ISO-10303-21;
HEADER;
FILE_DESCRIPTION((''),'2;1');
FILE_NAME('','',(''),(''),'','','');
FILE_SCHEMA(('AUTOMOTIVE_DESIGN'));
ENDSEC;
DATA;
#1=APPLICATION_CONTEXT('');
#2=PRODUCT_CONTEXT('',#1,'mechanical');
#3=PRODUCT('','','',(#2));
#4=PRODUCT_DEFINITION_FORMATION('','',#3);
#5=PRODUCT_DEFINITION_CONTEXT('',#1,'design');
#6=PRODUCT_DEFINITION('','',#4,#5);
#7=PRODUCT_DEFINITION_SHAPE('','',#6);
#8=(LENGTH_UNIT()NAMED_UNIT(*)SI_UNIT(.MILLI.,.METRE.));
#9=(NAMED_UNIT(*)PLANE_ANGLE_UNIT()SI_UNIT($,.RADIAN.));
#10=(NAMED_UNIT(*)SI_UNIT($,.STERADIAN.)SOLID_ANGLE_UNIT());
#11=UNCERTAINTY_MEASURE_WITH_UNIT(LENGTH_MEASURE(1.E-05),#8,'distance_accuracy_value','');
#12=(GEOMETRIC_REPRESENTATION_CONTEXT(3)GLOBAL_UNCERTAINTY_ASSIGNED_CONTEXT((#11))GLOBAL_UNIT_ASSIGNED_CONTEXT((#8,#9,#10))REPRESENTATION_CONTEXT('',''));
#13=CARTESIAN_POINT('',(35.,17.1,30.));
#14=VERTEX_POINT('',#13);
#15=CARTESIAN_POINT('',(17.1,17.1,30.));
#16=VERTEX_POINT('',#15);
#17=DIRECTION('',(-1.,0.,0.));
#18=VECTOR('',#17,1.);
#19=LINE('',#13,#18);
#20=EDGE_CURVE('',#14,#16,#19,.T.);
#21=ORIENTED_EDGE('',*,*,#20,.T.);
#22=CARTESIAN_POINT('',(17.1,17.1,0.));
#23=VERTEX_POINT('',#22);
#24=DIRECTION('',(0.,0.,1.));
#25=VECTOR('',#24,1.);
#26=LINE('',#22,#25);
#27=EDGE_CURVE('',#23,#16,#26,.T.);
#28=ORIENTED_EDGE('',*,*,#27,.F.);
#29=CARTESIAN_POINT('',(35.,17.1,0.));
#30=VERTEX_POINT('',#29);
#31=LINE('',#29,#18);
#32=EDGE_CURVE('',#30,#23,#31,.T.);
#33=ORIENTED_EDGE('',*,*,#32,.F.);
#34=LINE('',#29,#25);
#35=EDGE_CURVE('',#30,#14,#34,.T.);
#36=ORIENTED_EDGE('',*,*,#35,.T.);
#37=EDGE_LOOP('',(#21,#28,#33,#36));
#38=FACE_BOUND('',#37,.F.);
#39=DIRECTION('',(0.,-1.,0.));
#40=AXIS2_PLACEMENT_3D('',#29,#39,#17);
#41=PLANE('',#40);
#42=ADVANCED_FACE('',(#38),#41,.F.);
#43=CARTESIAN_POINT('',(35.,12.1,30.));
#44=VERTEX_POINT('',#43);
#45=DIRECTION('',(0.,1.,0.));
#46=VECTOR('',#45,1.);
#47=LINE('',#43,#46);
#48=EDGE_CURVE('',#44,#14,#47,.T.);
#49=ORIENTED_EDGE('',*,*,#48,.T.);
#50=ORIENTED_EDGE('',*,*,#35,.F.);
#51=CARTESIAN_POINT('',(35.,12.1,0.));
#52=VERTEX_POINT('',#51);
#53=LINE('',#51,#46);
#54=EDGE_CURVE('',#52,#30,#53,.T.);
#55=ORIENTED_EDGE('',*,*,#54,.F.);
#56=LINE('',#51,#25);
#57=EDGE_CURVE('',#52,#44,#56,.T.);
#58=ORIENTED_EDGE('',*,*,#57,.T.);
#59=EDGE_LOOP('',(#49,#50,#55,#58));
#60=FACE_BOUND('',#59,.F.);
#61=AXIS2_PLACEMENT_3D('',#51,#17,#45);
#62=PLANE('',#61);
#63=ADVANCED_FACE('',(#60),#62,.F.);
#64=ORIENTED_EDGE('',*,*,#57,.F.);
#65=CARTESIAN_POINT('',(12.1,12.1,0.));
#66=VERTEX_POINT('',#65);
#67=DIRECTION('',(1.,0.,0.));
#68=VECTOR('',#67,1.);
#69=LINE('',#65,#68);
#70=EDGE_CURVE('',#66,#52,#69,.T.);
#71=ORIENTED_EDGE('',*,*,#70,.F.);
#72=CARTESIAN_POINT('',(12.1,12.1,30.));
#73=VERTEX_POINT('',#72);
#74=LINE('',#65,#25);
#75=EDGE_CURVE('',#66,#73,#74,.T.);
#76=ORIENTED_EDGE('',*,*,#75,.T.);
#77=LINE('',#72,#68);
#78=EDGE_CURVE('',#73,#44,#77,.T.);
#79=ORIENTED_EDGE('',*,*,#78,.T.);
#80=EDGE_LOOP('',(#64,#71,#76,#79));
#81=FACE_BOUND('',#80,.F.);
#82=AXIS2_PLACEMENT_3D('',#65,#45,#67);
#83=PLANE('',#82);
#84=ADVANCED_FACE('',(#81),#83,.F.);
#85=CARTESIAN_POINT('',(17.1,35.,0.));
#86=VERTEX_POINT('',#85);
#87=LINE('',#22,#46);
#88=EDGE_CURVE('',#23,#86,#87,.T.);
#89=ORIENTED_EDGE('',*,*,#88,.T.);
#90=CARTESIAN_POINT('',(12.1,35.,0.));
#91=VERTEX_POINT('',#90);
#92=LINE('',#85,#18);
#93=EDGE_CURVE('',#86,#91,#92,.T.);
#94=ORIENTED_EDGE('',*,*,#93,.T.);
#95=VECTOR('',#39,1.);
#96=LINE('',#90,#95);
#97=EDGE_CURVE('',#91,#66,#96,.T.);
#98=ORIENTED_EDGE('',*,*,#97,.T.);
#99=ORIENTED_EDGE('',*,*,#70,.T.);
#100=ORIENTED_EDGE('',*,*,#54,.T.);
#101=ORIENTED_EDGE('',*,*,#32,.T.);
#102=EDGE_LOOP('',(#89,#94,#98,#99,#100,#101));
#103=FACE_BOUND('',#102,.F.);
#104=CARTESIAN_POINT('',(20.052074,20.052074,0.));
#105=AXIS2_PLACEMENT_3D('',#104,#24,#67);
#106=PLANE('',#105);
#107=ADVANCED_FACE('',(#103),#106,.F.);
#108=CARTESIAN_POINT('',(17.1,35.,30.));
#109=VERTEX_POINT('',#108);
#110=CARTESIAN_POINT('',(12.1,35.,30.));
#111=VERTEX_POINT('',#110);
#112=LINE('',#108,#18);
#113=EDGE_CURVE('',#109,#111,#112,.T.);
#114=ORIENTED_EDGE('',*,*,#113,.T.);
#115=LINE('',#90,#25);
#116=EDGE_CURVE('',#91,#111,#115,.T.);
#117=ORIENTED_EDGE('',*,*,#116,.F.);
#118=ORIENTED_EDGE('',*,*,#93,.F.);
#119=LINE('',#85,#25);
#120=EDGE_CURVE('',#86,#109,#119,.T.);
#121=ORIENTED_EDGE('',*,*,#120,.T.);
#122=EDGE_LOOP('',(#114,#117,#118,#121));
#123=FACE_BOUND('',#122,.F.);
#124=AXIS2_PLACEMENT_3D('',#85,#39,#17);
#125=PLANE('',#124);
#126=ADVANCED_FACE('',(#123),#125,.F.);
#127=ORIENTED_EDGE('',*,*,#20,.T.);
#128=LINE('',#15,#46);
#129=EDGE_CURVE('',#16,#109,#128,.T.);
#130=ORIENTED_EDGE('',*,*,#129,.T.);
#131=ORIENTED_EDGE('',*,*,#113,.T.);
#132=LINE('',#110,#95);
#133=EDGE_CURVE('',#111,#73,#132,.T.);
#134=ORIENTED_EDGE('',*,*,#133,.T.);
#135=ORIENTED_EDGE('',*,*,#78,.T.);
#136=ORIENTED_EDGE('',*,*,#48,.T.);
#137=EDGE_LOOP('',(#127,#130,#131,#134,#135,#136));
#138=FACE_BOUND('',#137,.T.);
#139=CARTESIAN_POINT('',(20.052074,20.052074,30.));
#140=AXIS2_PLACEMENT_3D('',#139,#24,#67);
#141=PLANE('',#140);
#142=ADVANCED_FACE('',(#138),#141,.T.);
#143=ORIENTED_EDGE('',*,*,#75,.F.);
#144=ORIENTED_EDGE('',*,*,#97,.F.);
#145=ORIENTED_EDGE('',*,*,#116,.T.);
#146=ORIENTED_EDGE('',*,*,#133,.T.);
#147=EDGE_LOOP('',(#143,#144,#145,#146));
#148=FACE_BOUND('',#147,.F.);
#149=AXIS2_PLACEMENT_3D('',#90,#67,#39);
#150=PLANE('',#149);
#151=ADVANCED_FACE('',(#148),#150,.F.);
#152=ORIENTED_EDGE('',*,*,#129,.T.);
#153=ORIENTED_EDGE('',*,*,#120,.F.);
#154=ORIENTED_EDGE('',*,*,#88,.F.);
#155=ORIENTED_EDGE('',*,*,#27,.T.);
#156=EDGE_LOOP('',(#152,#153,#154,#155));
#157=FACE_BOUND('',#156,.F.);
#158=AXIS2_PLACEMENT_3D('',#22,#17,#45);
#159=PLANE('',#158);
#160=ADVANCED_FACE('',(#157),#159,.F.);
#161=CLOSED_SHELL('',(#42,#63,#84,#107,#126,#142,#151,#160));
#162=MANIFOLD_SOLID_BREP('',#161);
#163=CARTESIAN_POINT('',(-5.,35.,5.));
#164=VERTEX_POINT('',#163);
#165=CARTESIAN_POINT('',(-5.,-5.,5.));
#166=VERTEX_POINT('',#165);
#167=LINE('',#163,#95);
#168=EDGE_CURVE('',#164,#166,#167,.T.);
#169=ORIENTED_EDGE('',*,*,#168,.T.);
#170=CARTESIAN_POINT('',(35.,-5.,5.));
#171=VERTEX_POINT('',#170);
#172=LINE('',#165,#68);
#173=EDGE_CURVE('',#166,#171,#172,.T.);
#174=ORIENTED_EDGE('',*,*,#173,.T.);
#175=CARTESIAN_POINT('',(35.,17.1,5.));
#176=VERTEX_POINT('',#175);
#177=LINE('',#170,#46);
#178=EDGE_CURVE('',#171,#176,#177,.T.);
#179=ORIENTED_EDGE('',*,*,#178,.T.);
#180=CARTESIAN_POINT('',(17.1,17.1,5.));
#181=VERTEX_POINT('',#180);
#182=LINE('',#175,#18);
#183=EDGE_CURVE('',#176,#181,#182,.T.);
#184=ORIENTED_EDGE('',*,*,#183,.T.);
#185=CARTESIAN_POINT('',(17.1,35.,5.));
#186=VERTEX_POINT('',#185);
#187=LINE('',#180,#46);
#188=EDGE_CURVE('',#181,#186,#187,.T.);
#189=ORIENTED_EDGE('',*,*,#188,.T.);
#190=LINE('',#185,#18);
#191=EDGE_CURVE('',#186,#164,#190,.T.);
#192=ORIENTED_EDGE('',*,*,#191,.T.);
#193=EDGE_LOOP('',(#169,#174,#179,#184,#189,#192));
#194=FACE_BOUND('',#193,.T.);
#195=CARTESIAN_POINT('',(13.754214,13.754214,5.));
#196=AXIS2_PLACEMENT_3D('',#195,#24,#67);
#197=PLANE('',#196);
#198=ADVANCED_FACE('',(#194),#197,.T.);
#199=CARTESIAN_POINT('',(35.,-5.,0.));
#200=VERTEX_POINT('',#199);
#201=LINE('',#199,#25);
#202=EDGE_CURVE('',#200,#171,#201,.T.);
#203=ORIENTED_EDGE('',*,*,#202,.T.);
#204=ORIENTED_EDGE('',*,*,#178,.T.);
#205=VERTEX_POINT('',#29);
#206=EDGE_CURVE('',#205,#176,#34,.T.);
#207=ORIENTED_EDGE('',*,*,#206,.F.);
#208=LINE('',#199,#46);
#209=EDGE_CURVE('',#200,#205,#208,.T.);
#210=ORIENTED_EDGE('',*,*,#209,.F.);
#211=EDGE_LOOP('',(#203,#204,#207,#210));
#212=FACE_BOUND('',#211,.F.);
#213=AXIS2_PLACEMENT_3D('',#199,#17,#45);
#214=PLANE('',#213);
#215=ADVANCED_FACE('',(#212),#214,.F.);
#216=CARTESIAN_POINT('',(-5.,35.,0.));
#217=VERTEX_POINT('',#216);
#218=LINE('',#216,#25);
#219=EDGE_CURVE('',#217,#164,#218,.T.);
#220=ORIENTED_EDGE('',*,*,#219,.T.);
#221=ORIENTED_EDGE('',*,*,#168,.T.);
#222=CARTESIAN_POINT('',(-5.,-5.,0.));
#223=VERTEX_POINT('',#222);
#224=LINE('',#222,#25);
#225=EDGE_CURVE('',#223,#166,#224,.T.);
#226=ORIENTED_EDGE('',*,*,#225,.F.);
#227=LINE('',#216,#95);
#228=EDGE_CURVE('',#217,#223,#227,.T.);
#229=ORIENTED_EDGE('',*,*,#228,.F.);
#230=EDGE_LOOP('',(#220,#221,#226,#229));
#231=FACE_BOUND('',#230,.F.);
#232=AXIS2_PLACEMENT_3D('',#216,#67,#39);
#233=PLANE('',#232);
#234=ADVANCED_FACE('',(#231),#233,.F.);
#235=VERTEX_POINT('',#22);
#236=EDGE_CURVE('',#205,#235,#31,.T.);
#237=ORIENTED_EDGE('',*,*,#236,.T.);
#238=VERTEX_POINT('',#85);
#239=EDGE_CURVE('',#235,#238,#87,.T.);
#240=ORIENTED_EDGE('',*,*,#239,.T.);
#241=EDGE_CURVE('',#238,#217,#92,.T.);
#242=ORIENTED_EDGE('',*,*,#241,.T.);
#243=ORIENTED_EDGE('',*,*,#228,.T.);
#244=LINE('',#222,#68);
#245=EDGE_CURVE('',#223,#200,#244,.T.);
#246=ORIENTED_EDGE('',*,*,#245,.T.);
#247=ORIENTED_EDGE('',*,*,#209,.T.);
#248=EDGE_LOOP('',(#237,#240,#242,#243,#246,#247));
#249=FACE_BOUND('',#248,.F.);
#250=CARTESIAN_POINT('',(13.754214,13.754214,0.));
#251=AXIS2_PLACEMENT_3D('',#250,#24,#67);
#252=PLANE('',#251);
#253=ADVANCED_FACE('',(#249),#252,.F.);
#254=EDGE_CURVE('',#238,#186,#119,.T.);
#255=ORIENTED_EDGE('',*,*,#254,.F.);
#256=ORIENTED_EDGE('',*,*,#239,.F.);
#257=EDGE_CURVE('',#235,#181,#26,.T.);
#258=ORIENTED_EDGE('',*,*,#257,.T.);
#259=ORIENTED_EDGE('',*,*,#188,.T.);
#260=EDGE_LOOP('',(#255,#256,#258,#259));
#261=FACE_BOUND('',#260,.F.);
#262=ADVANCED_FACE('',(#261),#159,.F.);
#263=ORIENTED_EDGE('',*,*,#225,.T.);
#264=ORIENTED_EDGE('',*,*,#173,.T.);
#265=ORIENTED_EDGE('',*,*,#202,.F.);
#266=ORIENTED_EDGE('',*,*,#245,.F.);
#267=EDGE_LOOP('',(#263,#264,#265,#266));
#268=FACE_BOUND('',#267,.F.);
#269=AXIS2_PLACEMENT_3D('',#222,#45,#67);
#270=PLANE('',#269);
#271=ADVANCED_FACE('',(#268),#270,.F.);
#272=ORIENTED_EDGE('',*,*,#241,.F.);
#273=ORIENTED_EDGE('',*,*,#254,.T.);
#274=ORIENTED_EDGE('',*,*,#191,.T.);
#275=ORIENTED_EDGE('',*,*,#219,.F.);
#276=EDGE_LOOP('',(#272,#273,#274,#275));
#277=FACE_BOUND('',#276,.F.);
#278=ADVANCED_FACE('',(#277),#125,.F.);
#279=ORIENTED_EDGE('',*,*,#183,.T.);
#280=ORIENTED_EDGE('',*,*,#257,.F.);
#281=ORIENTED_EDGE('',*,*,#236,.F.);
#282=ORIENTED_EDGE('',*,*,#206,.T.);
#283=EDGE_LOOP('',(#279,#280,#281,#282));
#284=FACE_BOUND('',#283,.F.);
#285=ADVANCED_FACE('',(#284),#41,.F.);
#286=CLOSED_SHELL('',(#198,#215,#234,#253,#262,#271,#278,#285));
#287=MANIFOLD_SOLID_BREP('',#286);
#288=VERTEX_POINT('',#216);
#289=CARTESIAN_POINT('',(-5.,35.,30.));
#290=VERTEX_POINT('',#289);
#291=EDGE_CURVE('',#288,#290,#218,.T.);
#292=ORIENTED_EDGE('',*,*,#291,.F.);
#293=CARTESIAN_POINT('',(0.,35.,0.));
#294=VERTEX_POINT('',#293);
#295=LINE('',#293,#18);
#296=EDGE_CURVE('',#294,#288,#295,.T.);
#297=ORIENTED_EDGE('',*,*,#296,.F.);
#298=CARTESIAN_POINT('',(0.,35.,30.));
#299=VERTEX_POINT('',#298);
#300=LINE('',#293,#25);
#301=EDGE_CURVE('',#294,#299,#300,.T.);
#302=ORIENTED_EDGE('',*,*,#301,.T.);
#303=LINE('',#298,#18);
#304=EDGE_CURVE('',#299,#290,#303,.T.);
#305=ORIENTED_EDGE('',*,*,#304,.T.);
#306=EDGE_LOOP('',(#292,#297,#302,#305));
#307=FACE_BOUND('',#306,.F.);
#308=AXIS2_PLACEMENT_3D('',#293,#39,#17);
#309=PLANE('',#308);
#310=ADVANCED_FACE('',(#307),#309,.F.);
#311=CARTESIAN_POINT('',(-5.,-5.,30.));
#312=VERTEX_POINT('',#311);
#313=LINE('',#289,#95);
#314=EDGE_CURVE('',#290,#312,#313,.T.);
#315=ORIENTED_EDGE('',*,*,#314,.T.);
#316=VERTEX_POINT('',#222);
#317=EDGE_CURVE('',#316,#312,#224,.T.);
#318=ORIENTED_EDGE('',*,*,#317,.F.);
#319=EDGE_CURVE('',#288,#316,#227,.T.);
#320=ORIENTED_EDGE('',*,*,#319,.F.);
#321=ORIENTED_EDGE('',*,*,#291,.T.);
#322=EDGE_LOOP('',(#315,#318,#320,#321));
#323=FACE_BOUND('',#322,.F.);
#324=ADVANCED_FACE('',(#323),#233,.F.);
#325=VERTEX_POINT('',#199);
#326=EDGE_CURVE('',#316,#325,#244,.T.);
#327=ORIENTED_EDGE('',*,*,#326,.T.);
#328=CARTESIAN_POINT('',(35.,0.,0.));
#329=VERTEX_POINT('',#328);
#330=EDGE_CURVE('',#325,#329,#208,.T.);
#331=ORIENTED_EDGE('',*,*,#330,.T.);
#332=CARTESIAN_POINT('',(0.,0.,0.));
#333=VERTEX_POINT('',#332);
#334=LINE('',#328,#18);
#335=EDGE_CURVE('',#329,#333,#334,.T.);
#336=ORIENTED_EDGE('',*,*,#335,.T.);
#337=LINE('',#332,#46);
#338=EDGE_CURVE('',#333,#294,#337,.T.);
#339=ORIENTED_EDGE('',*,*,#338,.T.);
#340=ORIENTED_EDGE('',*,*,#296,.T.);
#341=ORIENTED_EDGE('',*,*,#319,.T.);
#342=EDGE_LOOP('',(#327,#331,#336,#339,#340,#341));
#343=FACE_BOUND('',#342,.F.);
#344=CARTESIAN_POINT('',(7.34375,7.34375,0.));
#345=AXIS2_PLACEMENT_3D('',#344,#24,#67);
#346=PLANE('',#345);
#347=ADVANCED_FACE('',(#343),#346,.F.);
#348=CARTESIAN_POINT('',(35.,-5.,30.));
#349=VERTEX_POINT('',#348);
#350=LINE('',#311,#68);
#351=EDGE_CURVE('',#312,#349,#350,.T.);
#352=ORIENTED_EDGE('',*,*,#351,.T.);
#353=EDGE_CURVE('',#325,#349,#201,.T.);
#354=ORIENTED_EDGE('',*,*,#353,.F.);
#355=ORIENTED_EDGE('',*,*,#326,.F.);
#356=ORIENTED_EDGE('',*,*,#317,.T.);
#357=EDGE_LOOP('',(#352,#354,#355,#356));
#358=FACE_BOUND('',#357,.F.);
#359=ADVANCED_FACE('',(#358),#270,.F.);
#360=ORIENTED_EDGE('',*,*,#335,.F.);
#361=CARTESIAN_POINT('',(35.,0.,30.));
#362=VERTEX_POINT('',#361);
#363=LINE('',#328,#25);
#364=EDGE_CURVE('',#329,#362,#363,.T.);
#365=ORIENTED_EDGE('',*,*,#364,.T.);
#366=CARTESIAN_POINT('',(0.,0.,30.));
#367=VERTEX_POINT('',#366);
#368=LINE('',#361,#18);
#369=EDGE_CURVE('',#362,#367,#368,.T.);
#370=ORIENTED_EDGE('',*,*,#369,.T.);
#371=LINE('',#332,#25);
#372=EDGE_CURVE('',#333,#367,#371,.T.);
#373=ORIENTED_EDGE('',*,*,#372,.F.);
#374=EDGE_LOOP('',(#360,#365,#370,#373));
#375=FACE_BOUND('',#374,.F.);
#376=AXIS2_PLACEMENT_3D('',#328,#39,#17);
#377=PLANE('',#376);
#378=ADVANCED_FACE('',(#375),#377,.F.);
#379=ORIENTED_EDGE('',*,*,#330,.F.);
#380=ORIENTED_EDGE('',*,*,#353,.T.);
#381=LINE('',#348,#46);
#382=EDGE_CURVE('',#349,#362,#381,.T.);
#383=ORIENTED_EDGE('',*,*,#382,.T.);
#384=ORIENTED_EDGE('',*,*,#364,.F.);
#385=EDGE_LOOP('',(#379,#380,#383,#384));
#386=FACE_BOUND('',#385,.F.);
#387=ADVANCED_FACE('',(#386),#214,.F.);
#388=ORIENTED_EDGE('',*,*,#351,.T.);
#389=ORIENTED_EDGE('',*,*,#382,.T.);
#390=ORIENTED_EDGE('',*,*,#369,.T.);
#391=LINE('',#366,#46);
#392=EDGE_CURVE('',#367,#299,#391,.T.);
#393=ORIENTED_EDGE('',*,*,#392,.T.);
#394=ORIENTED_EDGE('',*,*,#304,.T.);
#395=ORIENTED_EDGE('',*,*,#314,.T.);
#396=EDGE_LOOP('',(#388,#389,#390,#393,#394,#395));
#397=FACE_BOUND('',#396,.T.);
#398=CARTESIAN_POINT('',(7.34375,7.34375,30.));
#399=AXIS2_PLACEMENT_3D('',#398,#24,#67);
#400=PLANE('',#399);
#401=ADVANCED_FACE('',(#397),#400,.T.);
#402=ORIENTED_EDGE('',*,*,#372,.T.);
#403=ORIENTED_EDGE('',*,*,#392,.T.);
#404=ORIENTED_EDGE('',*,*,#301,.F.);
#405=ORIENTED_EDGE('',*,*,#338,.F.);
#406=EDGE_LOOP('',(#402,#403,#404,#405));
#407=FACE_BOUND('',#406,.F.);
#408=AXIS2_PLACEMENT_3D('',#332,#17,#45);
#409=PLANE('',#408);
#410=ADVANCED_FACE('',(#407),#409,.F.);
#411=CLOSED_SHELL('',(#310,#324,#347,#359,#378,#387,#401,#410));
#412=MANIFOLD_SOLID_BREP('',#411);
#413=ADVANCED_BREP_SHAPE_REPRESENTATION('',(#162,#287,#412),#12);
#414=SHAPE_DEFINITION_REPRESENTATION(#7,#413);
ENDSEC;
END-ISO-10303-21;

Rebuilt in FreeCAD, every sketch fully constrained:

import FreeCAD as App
import Part
import Sketcher
Q = App.Units.Quantity

doc = App.newDocument("Part")
body = doc.addObject("PartDesign::Body", "Body")
body.AllowCompound = True

# Sketch on XY plane
sketch1 = body.newObject("Sketcher::SketchObject", "Sketch")
sketch1.AttachmentSupport = (doc.getObject("XY_Plane"), [""])
sketch1.MapMode = "FlatFace"
sketch1.addGeometry([
    Part.LineSegment(App.Vector(35, 0, 0), App.Vector(0, 0, 0)),  # 0
    Part.LineSegment(App.Vector(0, 0, 0), App.Vector(0, 35, 0)),  # 1
    Part.LineSegment(App.Vector(0, 35, 0), App.Vector(-5, 35, 0)),  # 2
    Part.LineSegment(App.Vector(-5, 35, 0), App.Vector(-5, -5, 0)),  # 3
    Part.LineSegment(App.Vector(-5, -5, 0), App.Vector(35, -5, 0)),  # 4
    Part.LineSegment(App.Vector(35, -5, 0), App.Vector(35, 0, 0)),  # 5
    Part.LineSegment(App.Vector(12, 12, 0), App.Vector(35, 12, 0)),  # 6
    Part.LineSegment(App.Vector(35, 12, 0), App.Vector(35, 17, 0)),  # 7
    Part.LineSegment(App.Vector(35, 17, 0), App.Vector(17, 17, 0)),  # 8
    Part.LineSegment(App.Vector(17, 17, 0), App.Vector(17, 35, 0)),  # 9
    Part.LineSegment(App.Vector(17, 35, 0), App.Vector(12, 35, 0)),  # 10
    Part.LineSegment(App.Vector(12, 35, 0), App.Vector(12, 12, 0)),  # 11
], False)
sketch1.addConstraint([
    Sketcher.Constraint("Coincident", 0, 2, 1, 1),
    Sketcher.Constraint("Coincident", 1, 2, 2, 1),
    Sketcher.Constraint("Coincident", 2, 2, 3, 1),
    Sketcher.Constraint("Coincident", 3, 2, 4, 1),
    Sketcher.Constraint("Coincident", 4, 2, 5, 1),
    Sketcher.Constraint("Coincident", 5, 2, 0, 1),
    Sketcher.Constraint("Coincident", 6, 2, 7, 1),
    Sketcher.Constraint("Coincident", 7, 2, 8, 1),
    Sketcher.Constraint("Coincident", 8, 2, 9, 1),
    Sketcher.Constraint("Coincident", 9, 2, 10, 1),
    Sketcher.Constraint("Coincident", 10, 2, 11, 1),
    Sketcher.Constraint("Coincident", 11, 2, 6, 1),
    Sketcher.Constraint("Horizontal", 0),
    Sketcher.Constraint("Vertical", 1),
    Sketcher.Constraint("Horizontal", 2),
    Sketcher.Constraint("Vertical", 3),
    Sketcher.Constraint("Horizontal", 4),
    Sketcher.Constraint("Vertical", 5),
    Sketcher.Constraint("Horizontal", 6),
    Sketcher.Constraint("Vertical", 7),
    Sketcher.Constraint("Horizontal", 8),
    Sketcher.Constraint("Vertical", 9),
    Sketcher.Constraint("Horizontal", 10),
    Sketcher.Constraint("Vertical", 11),
    Sketcher.Constraint("Coincident", 0, 2, -1, 1),
    Sketcher.Constraint("Horizontal", 2, 2, 9, 2),
    Sketcher.Constraint("Vertical", 5, 2, 6, 2),
    Sketcher.Constraint("Equal", 2, 10),
    Sketcher.Constraint("Equal", 0, 1),
    Sketcher.Constraint("Equal", 4, 3),
    Sketcher.Constraint("Equal", 5, 7),
    Sketcher.Constraint("Equal", 8, 9),
    Sketcher.Constraint("DistanceX", 0, 2, 0, 1, Q("35 mm")),
    Sketcher.Constraint("DistanceX", 2, 2, 2, 1, Q("5 mm")),
    Sketcher.Constraint("DistanceX", 6, 1, 6, 2, Q("22.9 mm")),
])
pad1 = body.newObject("PartDesign::Pad", "Pad")
pad1.Profile = sketch1
pad1.Length = 30
body2 = doc.addObject("PartDesign::Body", "Body001")

# Sketch on XY plane
sketch2 = body2.newObject("Sketcher::SketchObject", "Sketch001")
sketch2.AttachmentSupport = (doc.getObject("XY_Plane001"), [""])
sketch2.MapMode = "FlatFace"
sketch2.addGeometry([
    Part.LineSegment(App.Vector(-5, 35, 0), App.Vector(-5, -5, 0)),  # 0
    Part.LineSegment(App.Vector(-5, -5, 0), App.Vector(35, -5, 0)),  # 1
    Part.LineSegment(App.Vector(35, -5, 0), App.Vector(35, 17, 0)),  # 2
    Part.LineSegment(App.Vector(35, 17, 0), App.Vector(17, 17, 0)),  # 3
    Part.LineSegment(App.Vector(17, 17, 0), App.Vector(17, 35, 0)),  # 4
    Part.LineSegment(App.Vector(17, 35, 0), App.Vector(-5, 35, 0)),  # 5
], False)
sketch2.addConstraint([
    Sketcher.Constraint("Coincident", 0, 2, 1, 1),
    Sketcher.Constraint("Coincident", 1, 2, 2, 1),
    Sketcher.Constraint("Coincident", 2, 2, 3, 1),
    Sketcher.Constraint("Coincident", 3, 2, 4, 1),
    Sketcher.Constraint("Coincident", 4, 2, 5, 1),
    Sketcher.Constraint("Coincident", 5, 2, 0, 1),
    Sketcher.Constraint("Vertical", 0),
    Sketcher.Constraint("Horizontal", 1),
    Sketcher.Constraint("Vertical", 2),
    Sketcher.Constraint("Horizontal", 3),
    Sketcher.Constraint("Vertical", 4),
    Sketcher.Constraint("Horizontal", 5),
    Sketcher.Constraint("Equal", 1, 0),
    Sketcher.Constraint("Equal", 5, 2),
    Sketcher.Constraint("DistanceX", 1, 1, 1, 2, Q("40 mm")),
    Sketcher.Constraint("DistanceX", 3, 2, 3, 1, Q("17.9 mm")),
    Sketcher.Constraint("DistanceX", 0, 2, -1, 1, Q("5 mm")),
    Sketcher.Constraint("DistanceY", 0, 2, -1, 1, Q("5 mm")),
])
pad2 = body2.newObject("PartDesign::Pad", "Pad001")
pad2.Profile = sketch2
pad2.Length = 5

doc.recompute()
